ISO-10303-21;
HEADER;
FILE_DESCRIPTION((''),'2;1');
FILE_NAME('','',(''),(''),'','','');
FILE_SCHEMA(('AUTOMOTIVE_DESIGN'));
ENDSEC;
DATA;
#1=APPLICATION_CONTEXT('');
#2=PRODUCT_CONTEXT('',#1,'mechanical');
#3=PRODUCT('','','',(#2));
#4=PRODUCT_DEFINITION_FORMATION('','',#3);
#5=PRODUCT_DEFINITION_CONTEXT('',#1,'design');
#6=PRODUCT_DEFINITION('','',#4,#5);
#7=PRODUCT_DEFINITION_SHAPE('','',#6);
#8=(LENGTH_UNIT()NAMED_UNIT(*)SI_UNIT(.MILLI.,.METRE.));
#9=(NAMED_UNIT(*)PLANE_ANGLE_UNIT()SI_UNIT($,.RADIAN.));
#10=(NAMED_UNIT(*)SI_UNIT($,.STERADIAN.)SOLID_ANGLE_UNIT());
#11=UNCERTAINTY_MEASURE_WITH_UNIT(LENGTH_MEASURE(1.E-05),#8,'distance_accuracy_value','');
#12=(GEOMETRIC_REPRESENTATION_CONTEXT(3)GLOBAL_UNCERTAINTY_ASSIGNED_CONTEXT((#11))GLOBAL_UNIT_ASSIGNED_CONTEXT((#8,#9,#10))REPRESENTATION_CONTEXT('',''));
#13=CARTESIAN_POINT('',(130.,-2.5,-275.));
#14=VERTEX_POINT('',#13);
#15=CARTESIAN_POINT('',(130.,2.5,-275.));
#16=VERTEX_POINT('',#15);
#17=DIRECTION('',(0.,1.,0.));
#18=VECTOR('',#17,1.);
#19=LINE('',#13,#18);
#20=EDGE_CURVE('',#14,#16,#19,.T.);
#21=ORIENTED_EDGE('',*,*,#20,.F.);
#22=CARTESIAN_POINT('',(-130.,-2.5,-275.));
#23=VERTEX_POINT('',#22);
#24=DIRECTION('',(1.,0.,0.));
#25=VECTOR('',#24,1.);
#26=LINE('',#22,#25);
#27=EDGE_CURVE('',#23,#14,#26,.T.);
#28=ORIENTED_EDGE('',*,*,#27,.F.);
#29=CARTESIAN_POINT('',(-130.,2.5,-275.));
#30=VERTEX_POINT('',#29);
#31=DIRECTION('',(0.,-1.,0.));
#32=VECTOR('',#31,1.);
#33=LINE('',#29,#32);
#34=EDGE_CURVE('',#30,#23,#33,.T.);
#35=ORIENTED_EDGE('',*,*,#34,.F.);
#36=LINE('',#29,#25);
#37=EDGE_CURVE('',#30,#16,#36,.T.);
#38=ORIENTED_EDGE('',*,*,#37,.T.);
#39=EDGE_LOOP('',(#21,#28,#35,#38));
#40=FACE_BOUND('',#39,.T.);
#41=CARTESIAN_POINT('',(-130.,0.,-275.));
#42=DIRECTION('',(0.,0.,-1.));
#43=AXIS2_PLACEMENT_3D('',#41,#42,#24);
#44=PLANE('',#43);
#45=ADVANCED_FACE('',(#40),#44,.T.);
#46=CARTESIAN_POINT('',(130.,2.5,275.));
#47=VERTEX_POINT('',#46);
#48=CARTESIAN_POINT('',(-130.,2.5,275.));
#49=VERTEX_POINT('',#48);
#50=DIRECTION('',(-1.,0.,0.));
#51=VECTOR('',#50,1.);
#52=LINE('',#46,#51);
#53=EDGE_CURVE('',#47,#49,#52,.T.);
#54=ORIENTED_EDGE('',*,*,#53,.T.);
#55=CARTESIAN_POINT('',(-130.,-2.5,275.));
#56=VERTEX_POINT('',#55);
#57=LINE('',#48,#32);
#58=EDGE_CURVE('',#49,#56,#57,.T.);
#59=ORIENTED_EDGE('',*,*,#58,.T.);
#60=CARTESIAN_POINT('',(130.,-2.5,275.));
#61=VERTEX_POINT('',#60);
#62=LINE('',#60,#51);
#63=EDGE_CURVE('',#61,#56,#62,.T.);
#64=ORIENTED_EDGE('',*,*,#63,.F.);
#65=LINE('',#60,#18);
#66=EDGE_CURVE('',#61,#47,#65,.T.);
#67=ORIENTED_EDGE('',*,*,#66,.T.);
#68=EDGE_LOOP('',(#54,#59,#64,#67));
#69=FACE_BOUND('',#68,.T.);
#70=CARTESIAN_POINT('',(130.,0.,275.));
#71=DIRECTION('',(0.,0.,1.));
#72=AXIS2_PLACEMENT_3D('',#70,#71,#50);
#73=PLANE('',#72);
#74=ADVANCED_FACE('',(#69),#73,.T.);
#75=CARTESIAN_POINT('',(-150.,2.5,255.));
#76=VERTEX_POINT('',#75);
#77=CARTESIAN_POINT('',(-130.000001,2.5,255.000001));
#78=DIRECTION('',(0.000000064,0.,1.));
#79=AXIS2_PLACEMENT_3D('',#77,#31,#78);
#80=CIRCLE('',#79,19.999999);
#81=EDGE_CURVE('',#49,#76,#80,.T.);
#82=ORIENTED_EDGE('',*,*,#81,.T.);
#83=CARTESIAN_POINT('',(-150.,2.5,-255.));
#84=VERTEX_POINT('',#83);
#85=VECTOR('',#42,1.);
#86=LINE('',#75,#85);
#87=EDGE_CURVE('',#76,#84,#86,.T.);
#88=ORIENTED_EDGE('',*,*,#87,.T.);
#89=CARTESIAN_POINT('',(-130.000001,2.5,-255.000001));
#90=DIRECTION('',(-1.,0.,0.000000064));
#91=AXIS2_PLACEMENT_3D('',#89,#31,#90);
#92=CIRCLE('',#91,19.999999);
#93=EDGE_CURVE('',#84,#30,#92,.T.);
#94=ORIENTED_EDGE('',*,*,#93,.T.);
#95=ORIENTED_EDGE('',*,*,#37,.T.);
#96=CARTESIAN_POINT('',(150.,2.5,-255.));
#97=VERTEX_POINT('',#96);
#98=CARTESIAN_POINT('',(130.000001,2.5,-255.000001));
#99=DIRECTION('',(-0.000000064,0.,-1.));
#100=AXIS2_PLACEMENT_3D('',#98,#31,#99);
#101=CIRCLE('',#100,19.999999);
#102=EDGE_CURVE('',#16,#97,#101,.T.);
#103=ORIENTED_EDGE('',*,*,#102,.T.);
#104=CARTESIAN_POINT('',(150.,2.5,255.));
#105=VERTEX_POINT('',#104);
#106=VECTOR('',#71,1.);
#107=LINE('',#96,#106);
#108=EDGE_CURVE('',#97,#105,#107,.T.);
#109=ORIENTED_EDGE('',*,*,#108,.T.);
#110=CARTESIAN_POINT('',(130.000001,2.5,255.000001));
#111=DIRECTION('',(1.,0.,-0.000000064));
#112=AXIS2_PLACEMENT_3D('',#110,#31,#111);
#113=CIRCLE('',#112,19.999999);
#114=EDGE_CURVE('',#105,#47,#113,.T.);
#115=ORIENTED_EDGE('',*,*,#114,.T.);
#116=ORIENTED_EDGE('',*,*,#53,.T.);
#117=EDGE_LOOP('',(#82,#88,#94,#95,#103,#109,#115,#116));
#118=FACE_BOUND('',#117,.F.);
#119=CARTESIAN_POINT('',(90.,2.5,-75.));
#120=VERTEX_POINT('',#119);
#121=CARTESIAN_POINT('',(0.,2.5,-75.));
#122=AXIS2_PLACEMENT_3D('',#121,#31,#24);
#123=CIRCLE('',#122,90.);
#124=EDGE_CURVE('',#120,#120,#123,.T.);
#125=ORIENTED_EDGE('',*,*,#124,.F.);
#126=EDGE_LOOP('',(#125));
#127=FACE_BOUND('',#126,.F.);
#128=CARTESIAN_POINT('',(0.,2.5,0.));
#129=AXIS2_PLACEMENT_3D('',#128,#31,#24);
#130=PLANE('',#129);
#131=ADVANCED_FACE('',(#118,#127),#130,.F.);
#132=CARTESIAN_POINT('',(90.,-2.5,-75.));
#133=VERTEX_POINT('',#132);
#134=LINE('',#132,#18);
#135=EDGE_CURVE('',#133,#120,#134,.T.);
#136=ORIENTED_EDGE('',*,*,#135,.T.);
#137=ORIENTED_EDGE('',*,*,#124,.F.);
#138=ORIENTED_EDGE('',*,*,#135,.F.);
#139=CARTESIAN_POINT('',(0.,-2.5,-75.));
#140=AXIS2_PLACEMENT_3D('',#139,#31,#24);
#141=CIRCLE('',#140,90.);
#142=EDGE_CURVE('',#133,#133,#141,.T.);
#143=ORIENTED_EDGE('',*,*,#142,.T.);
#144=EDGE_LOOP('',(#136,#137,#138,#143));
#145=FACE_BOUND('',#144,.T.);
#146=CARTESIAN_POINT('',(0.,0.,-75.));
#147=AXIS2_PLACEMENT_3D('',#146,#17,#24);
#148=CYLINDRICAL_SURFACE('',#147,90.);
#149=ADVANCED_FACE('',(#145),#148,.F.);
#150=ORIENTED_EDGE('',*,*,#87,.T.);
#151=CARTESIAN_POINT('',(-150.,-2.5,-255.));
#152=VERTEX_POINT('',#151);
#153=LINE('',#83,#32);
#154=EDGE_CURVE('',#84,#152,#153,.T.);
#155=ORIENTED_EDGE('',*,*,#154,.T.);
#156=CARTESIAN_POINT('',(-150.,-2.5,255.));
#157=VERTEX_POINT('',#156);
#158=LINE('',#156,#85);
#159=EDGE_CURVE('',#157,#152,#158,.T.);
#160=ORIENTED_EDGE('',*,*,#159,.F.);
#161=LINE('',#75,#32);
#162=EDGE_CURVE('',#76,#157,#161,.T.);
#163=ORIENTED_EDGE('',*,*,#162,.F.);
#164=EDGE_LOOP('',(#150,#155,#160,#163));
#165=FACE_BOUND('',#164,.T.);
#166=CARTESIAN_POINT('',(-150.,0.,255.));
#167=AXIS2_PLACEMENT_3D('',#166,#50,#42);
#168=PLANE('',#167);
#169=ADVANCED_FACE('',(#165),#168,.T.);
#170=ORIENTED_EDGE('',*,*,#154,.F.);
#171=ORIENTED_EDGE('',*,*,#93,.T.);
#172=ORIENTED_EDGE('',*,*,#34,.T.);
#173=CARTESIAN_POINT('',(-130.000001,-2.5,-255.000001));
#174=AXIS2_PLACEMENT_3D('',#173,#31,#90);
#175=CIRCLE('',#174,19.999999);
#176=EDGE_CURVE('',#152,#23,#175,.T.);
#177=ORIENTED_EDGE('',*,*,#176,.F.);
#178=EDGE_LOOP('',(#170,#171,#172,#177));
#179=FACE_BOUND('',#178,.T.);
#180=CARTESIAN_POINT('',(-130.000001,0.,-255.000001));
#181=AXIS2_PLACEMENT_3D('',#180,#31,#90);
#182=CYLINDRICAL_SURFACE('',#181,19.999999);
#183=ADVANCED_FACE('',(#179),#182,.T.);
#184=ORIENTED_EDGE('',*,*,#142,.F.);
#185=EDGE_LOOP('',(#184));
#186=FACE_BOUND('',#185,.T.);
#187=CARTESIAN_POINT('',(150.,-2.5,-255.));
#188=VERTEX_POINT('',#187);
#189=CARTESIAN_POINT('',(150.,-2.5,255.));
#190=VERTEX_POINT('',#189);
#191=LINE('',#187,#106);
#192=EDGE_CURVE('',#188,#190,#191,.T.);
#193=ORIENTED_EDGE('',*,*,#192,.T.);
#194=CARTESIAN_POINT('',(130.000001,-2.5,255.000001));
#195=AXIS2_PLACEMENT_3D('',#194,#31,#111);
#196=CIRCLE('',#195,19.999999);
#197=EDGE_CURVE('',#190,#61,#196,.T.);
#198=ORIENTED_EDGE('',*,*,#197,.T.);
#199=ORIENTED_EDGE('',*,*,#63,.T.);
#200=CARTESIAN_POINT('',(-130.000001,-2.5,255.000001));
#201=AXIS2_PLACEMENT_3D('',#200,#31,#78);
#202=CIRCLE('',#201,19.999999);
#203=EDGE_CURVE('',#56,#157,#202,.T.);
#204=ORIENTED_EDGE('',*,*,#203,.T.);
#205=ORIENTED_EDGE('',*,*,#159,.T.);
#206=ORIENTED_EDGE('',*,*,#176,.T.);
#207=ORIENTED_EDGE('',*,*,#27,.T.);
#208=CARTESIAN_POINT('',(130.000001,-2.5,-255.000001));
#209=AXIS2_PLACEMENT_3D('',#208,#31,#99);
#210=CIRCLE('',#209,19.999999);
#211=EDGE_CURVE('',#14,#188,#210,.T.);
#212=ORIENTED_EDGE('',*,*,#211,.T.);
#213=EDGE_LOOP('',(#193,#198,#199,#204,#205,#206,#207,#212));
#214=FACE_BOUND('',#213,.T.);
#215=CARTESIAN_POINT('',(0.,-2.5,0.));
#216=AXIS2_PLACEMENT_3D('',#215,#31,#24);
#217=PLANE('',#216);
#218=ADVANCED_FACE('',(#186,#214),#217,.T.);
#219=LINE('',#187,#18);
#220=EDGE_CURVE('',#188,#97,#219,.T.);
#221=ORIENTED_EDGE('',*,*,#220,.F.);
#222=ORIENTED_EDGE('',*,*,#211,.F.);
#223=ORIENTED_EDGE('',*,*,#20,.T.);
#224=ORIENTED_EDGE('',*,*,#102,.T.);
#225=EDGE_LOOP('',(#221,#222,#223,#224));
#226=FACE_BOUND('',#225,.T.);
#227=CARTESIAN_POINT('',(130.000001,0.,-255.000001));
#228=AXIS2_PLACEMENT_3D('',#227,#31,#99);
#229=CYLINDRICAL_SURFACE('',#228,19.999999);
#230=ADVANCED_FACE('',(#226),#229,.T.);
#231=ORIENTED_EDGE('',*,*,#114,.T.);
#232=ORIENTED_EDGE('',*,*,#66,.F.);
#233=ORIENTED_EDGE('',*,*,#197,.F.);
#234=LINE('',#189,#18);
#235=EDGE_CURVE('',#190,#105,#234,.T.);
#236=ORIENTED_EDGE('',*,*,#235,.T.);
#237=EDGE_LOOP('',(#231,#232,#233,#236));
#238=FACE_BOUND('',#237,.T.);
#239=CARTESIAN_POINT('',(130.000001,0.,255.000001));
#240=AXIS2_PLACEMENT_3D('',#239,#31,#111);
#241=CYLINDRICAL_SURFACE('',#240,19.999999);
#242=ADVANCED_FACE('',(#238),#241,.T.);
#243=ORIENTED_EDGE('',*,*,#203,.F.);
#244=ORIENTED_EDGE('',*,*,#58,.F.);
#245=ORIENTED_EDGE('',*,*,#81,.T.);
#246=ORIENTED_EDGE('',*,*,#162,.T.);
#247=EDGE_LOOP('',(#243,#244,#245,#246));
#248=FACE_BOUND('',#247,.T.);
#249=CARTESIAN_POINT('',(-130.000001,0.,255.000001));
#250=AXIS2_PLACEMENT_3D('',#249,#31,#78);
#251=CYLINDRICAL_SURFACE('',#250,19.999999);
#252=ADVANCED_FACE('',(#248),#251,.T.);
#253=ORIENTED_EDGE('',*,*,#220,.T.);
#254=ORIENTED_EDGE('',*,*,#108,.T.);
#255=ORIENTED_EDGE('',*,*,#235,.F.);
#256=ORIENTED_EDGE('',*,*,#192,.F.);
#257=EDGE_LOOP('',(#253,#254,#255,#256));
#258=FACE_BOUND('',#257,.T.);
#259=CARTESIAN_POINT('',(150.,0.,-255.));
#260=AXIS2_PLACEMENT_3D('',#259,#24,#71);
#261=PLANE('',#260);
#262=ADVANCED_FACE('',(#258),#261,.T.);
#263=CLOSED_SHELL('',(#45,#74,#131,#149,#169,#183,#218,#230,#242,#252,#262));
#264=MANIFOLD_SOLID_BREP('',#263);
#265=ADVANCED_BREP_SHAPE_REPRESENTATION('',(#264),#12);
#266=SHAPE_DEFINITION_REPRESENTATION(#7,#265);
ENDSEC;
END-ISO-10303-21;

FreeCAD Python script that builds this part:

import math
import FreeCAD as App
import Part
import Sketcher
from FreeCAD import Vector
Q = App.Units.Quantity

doc = App.newDocument("Part")
body = doc.addObject("PartDesign::Body", "Body")

sketch1 = body.newObject("Sketcher::SketchObject", "Sketch")
sketch1.AttachmentSupport = (doc.getObject("XZ_Plane"), [""])
sketch1.MapMode = "FlatFace"
sketch1.addGeometry(Part.LineSegment(Vector(130, 275, 0), Vector(-130, 275, 0)), False)
sketch1.addGeometry(Part.ArcOfCircle(Part.Circle(Vector(-130, 255, 0), Vector(0, 0, 1), 20), math.radians(90), math.radians(180)), False)
sketch1.addGeometry(Part.LineSegment(Vector(-150, 255, 0), Vector(-150, -255, 0)), False)
sketch1.addGeometry(Part.ArcOfCircle(Part.Circle(Vector(-130, -255, 0), Vector(0, 0, 1), 20), math.radians(180), math.radians(270)), False)
sketch1.addGeometry(Part.LineSegment(Vector(-130, -275, 0), Vector(130, -275, 0)), False)
sketch1.addGeometry(Part.ArcOfCircle(Part.Circle(Vector(130, -255, 0), Vector(0, 0, 1), 20), math.radians(-90), math.radians(0)), False)
sketch1.addGeometry(Part.LineSegment(Vector(150, -255, 0), Vector(150, 255, 0)), False)
sketch1.addGeometry(Part.ArcOfCircle(Part.Circle(Vector(130, 255, 0), Vector(0, 0, 1), 20), math.radians(0), math.radians(90)), False)
sketch1.addGeometry(Part.Circle(Vector(0, -75, 0), Vector(0, 0, 1), 90), False)
sketch1.addConstraint(Sketcher.Constraint("Tangent", 0, 2, 1, 1))
sketch1.addConstraint(Sketcher.Constraint("Tangent", 1, 2, 2, 1))
sketch1.addConstraint(Sketcher.Constraint("Tangent", 2, 2, 3, 1))
sketch1.addConstraint(Sketcher.Constraint("Tangent", 3, 2, 4, 1))
sketch1.addConstraint(Sketcher.Constraint("Tangent", 4, 2, 5, 1))
sketch1.addConstraint(Sketcher.Constraint("Tangent", 5, 2, 6, 1))
sketch1.addConstraint(Sketcher.Constraint("Tangent", 6, 2, 7, 1))
sketch1.addConstraint(Sketcher.Constraint("Tangent", 7, 2, 0, 1))
sketch1.addConstraint(Sketcher.Constraint("Horizontal", 0))
sketch1.addConstraint(Sketcher.Constraint("Vertical", 2))
sketch1.addConstraint(Sketcher.Constraint("Horizontal", 4))
sketch1.addConstraint(Sketcher.Constraint("Vertical", 6))
sketch1.addConstraint(Sketcher.Constraint("Equal", 1, 3))
sketch1.addConstraint(Sketcher.Constraint("Equal", 3, 5))
sketch1.addConstraint(Sketcher.Constraint("Equal", 5, 7))
sketch1.addConstraint(Sketcher.Constraint("Symmetric", 1, 3, 5, 3, -1, 1))
sketch1.addConstraint(Sketcher.Constraint("PointOnObject", 8, 3, -2))
sketch1.addConstraint(Sketcher.Constraint("Diameter", 8, Q("180 mm")))
sketch1.addConstraint(Sketcher.Constraint("Radius", 1, Q("19.999999 mm")))
sketch1.addConstraint(Sketcher.Constraint("DistanceX", 0, 2, 0, 1, Q("260 mm")))
sketch1.addConstraint(Sketcher.Constraint("DistanceY", 2, 2, 2, 1, Q("510 mm")))
sketch1.addConstraint(Sketcher.Constraint("DistanceY", 8, 3, -1, 1, Q("75 mm")))
pad1 = body.newObject("PartDesign::Pad", "Pad")
pad1.Profile = sketch1
pad1.Length = 5
pad1.Midplane = True

doc.recompute()
